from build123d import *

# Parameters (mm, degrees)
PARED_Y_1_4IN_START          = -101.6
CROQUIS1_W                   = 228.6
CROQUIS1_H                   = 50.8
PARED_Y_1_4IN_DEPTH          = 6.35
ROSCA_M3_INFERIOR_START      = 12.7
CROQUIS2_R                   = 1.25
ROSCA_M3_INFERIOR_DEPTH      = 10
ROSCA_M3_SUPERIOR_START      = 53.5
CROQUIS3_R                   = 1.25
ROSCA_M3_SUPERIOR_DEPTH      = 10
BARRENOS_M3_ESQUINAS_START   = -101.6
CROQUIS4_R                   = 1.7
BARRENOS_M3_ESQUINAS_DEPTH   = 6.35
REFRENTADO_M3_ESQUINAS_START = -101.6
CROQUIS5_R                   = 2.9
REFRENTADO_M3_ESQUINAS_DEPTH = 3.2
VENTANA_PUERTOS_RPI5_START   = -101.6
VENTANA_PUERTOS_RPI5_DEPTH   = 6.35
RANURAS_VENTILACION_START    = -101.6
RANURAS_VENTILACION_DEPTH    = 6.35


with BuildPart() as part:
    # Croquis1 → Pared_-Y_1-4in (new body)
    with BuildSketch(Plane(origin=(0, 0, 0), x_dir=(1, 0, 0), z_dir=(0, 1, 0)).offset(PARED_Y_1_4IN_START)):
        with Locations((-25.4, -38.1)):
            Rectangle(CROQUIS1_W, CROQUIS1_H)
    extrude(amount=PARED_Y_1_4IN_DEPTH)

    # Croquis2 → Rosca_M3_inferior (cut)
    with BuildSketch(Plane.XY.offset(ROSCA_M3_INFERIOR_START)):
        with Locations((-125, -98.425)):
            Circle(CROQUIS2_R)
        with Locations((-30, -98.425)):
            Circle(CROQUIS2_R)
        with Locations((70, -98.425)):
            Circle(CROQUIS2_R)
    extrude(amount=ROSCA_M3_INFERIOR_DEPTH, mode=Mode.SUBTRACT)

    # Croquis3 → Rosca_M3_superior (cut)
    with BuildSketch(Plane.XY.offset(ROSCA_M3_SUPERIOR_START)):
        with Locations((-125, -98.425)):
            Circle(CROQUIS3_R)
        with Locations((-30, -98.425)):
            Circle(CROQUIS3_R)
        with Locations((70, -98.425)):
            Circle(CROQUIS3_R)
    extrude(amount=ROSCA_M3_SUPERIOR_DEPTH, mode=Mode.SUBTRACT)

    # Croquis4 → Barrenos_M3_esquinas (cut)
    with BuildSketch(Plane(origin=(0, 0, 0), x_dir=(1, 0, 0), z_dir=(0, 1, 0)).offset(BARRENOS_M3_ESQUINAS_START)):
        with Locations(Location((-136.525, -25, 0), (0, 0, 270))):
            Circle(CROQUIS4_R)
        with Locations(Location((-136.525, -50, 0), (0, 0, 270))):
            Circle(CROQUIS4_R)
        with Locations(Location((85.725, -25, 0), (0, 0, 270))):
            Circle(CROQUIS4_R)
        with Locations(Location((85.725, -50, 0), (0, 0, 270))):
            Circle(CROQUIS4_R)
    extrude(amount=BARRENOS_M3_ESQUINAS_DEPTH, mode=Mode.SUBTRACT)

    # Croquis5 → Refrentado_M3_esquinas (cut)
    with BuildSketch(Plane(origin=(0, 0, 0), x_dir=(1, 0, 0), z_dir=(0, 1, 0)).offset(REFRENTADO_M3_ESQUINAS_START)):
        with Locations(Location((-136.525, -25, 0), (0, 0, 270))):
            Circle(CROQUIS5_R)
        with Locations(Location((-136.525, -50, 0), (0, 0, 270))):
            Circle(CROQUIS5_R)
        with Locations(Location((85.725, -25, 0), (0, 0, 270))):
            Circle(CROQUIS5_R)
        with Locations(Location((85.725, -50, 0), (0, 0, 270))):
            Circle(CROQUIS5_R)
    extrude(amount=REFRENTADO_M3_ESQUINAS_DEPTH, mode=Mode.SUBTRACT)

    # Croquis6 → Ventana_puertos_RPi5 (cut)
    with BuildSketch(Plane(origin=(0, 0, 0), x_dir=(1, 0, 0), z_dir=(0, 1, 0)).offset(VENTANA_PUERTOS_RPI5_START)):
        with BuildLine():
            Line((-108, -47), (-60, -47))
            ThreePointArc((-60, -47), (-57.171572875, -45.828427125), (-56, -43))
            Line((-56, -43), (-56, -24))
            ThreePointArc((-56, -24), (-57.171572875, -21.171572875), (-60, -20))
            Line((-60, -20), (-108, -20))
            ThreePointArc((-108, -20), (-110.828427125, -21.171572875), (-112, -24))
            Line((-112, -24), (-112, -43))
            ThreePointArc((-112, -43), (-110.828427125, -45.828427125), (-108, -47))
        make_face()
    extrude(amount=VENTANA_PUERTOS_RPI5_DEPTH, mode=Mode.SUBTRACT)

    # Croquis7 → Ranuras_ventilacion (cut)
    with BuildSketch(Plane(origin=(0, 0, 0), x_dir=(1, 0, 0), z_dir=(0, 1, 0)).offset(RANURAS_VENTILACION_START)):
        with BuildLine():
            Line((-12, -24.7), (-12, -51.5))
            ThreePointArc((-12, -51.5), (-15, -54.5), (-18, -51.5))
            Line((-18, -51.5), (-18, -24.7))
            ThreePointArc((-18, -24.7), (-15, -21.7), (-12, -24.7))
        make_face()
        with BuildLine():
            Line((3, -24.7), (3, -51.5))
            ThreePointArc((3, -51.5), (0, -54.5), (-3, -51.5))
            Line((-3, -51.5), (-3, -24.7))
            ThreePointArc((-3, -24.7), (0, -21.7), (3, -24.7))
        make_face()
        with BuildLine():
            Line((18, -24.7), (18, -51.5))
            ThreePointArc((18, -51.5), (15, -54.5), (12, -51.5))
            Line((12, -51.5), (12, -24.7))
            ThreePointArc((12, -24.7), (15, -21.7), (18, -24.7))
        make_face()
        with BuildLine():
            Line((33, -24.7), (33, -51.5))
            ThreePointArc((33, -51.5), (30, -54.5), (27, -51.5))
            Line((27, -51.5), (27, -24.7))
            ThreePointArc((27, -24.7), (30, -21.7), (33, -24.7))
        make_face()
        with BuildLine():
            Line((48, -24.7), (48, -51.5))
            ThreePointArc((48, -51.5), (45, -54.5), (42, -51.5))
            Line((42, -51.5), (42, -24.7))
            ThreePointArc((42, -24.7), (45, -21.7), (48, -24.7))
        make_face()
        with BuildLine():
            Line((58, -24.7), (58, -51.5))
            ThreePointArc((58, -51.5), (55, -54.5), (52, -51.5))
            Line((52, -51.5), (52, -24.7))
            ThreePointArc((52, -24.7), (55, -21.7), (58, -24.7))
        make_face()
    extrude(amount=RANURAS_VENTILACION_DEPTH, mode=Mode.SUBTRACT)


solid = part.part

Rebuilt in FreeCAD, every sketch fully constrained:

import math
import FreeCAD as App
import Part
import Sketcher


def add_polygon(sketch, points):
    """Adds a closed chain of lines whose ends are joined by coincident constraints."""
    first, n = sketch.GeometryCount, len(points)
    for a, b in zip(points, points[1:] + points[:1]):
        sketch.addGeometry(Part.LineSegment(App.Vector(*a, 0), App.Vector(*b, 0)), False)
    for i in range(n):
        sketch.addConstraint(Sketcher.Constraint("Coincident", first + i, 2, first + (i + 1) % n, 1))

doc = App.newDocument("Part")
body = doc.addObject("PartDesign::Body", "Body")

sketch1 = body.newObject("Sketcher::SketchObject", "Sketch")
sketch1.AttachmentSupport = (doc.getObject("XZ_Plane"), [""])
sketch1.MapMode = "FlatFace"
sketch1.AttachmentOffset = App.Placement(App.Vector(0, 0, 101.6), App.Rotation())
add_polygon(sketch1, [(-140, 13), (-140, 64), (89, 64), (89, 13)])
sketch1.addConstraint([
    Sketcher.Constraint("Vertical", 0),
    Sketcher.Constraint("Horizontal", 1),
    Sketcher.Constraint("Vertical", 2),
    Sketcher.Constraint("Horizontal", 3),
    Sketcher.Constraint("DistanceX", 1, 1, 1, 2, 228.6),
    Sketcher.Constraint("DistanceY", 0, 1, 0, 2, 50.8),
    Sketcher.Constraint("DistanceX", 0, 2, -1, 1, 139.7),
    Sketcher.Constraint("DistanceY", -1, 1, 0, 2, 63.5),
])
pad1 = body.newObject("PartDesign::Pad", "Pad")
pad1.Profile = sketch1
pad1.Length = 6.35
pad1.Reversed = True

sketch2 = body.newObject("Sketcher::SketchObject", "Sketch001")
sketch2.AttachmentSupport = (doc.getObject("XY_Plane"), [""])
sketch2.MapMode = "FlatFace"
sketch2.AttachmentOffset = App.Placement(App.Vector(0, 0, 12.7), App.Rotation())
sketch2.addGeometry([
    Part.Circle(App.Vector(-125, -98.4, 0), App.Vector(0, 0, 1), 1.2),
    Part.Circle(App.Vector(-30, -98.4, 0), App.Vector(0, 0, 1), 1.2),
    Part.Circle(App.Vector(70, -98.4, 0), App.Vector(0, 0, 1), 1.2),
], False)
sketch2.addConstraint([
    Sketcher.Constraint("Equal", 0, 1),
    Sketcher.Constraint("Equal", 1, 2),
    Sketcher.Constraint("Horizontal", 0, 3, 1, 3),
    Sketcher.Constraint("Horizontal", 1, 3, 2, 3),
    Sketcher.Constraint("Diameter", 0, 2.5),
    Sketcher.Constraint("DistanceX", 0, 3, -1, 1, 125.0),
    Sketcher.Constraint("DistanceX", 1, 3, -1, 1, 30.0),
    Sketcher.Constraint("DistanceX", -1, 1, 2, 3, 70.0),
    Sketcher.Constraint("DistanceY", 0, 3, -1, 1, 98.425),
])
pocket1 = body.newObject("PartDesign::Pocket", "Pocket")
pocket1.Profile = sketch2
pocket1.Length = 10
pocket1.Reversed = True

sketch3 = body.newObject("Sketcher::SketchObject", "Sketch002")
sketch3.AttachmentSupport = (doc.getObject("XY_Plane"), [""])
sketch3.MapMode = "FlatFace"
sketch3.AttachmentOffset = App.Placement(App.Vector(0, 0, 53.5), App.Rotation())
sketch3.addGeometry([
    Part.Circle(App.Vector(-125, -98.4, 0), App.Vector(0, 0, 1), 1.2),
    Part.Circle(App.Vector(-30, -98.4, 0), App.Vector(0, 0, 1), 1.2),
    Part.Circle(App.Vector(70, -98.4, 0), App.Vector(0, 0, 1), 1.2),
], False)
sketch3.addConstraint([
    Sketcher.Constraint("Equal", 0, 1),
    Sketcher.Constraint("Equal", 1, 2),
    Sketcher.Constraint("Horizontal", 0, 3, 1, 3),
    Sketcher.Constraint("Horizontal", 1, 3, 2, 3),
    Sketcher.Constraint("Diameter", 0, 2.5),
    Sketcher.Constraint("DistanceX", 0, 3, -1, 1, 125.0),
    Sketcher.Constraint("DistanceX", 1, 3, -1, 1, 30.0),
    Sketcher.Constraint("DistanceX", -1, 1, 2, 3, 70.0),
    Sketcher.Constraint("DistanceY", 0, 3, -1, 1, 98.425),
])
pocket2 = body.newObject("PartDesign::Pocket", "Pocket001")
pocket2.Profile = sketch3
pocket2.Length = 10
pocket2.Reversed = True

sketch4 = body.newObject("Sketcher::SketchObject", "Sketch003")
sketch4.AttachmentSupport = (doc.getObject("XZ_Plane"), [""])
sketch4.MapMode = "FlatFace"
sketch4.AttachmentOffset = App.Placement(App.Vector(0, 0, 101.6), App.Rotation())
sketch4.addGeometry([
    Part.Circle(App.Vector(-136.5, 25, 0), App.Vector(0, 0, 1), 1.7),
    Part.Circle(App.Vector(-136.5, 50, 0), App.Vector(0, 0, 1), 1.7),
    Part.Circle(App.Vector(85.7, 25, 0), App.Vector(0, 0, 1), 1.7),
    Part.Circle(App.Vector(85.7, 50, 0), App.Vector(0, 0, 1), 1.7),
], False)
sketch4.addConstraint([
    Sketcher.Constraint("Equal", 0, 1),
    Sketcher.Constraint("Equal", 1, 2),
    Sketcher.Constraint("Equal", 2, 3),
    Sketcher.Constraint("Horizontal", 0, 3, 2, 3),
    Sketcher.Constraint("Horizontal", 1, 3, 3, 3),
    Sketcher.Constraint("Vertical", 0, 3, 1, 3),
    Sketcher.Constraint("Vertical", 2, 3, 3, 3),
    Sketcher.Constraint("Diameter", 0, 3.4),
    Sketcher.Constraint("DistanceY", -1, 1, 0, 3, 25.0),
    Sketcher.Constraint("DistanceY", -1, 1, 1, 3, 50.0),
    Sketcher.Constraint("DistanceX", 0, 3, 2, 3, 222.25),
    Sketcher.Constraint("DistanceX", 0, 3, -1, 1, 136.525),
])
pocket3 = body.newObject("PartDesign::Pocket", "Pocket002")
pocket3.Profile = sketch4
pocket3.Length = 6.35

sketch5 = body.newObject("Sketcher::SketchObject", "Sketch004")
sketch5.AttachmentSupport = (doc.getObject("XZ_Plane"), [""])
sketch5.MapMode = "FlatFace"
sketch5.AttachmentOffset = App.Placement(App.Vector(0, 0, 101.6), App.Rotation())
sketch5.addGeometry([
    Part.Circle(App.Vector(-136.5, 25, 0), App.Vector(0, 0, 1), 2.9),
    Part.Circle(App.Vector(-136.5, 50, 0), App.Vector(0, 0, 1), 2.9),
    Part.Circle(App.Vector(85.7, 25, 0), App.Vector(0, 0, 1), 2.9),
    Part.Circle(App.Vector(85.7, 50, 0), App.Vector(0, 0, 1), 2.9),
], False)
sketch5.addConstraint([
    Sketcher.Constraint("Equal", 0, 1),
    Sketcher.Constraint("Equal", 1, 2),
    Sketcher.Constraint("Equal", 2, 3),
    Sketcher.Constraint("Horizontal", 0, 3, 2, 3),
    Sketcher.Constraint("Horizontal", 1, 3, 3, 3),
    Sketcher.Constraint("Vertical", 0, 3, 1, 3),
    Sketcher.Constraint("Vertical", 2, 3, 3, 3),
    Sketcher.Constraint("Diameter", 0, 5.8),
    Sketcher.Constraint("DistanceY", -1, 1, 0, 3, 25.0),
    Sketcher.Constraint("DistanceY", -1, 1, 1, 3, 50.0),
    Sketcher.Constraint("DistanceX", 0, 3, 2, 3, 222.25),
    Sketcher.Constraint("DistanceX", 0, 3, -1, 1, 136.525),
])
pocket4 = body.newObject("PartDesign::Pocket", "Pocket003")
pocket4.Profile = sketch5
pocket4.Length = 3.2

sketch6 = body.newObject("Sketcher::SketchObject", "Sketch005")
sketch6.AttachmentSupport = (doc.getObject("XZ_Plane"), [""])
sketch6.MapMode = "FlatFace"
sketch6.AttachmentOffset = App.Placement(App.Vector(0, 0, 101.6), App.Rotation())
sketch6.addGeometry([
    Part.LineSegment(App.Vector(-108, 47, 0), App.Vector(-60, 47, 0)),
    Part.ArcOfCircle(Part.Circle(App.Vector(-60, 43, 0), App.Vector(0, 0, 1), 4), math.radians(0), math.radians(90)),
    Part.LineSegment(App.Vector(-56, 43, 0), App.Vector(-56, 24, 0)),
    Part.ArcOfCircle(Part.Circle(App.Vector(-60, 24, 0), App.Vector(0, 0, 1), 4), math.radians(-90), math.radians(0)),
    Part.LineSegment(App.Vector(-60, 20, 0), App.Vector(-108, 20, 0)),
    Part.ArcOfCircle(Part.Circle(App.Vector(-108, 24, 0), App.Vector(0, 0, 1), 4), math.radians(180), math.radians(270)),
    Part.LineSegment(App.Vector(-112, 24, 0), App.Vector(-112, 43, 0)),
    Part.ArcOfCircle(Part.Circle(App.Vector(-108, 43, 0), App.Vector(0, 0, 1), 4), math.radians(90), math.radians(180)),
], False)
sketch6.addConstraint([
    Sketcher.Constraint("Tangent", 0, 2, 1, 2),
    Sketcher.Constraint("Tangent", 1, 1, 2, 1),
    Sketcher.Constraint("Tangent", 2, 2, 3, 2),
    Sketcher.Constraint("Tangent", 3, 1, 4, 1),
    Sketcher.Constraint("Tangent", 4, 2, 5, 2),
    Sketcher.Constraint("Tangent", 5, 1, 6, 1),
    Sketcher.Constraint("Tangent", 6, 2, 7, 2),
    Sketcher.Constraint("Tangent", 7, 1, 0, 1),
    Sketcher.Constraint("Horizontal", 0),
    Sketcher.Constraint("Vertical", 2),
    Sketcher.Constraint("Horizontal", 4),
    Sketcher.Constraint("Vertical", 6),
    Sketcher.Constraint("Equal", 1, 3),
    Sketcher.Constraint("Equal", 3, 5),
    Sketcher.Constraint("Equal", 5, 7),
    Sketcher.Constraint("Radius", 1, 4.0),
    Sketcher.Constraint("DistanceX", 0, 1, 0, 2, 48.0),
    Sketcher.Constraint("DistanceY", 2, 2, 2, 1, 19.0),
    Sketcher.Constraint("DistanceX", 1, 3, -1, 1, 60.0),
    Sketcher.Constraint("DistanceY", -1, 1, 1, 3, 43.0),
])
pocket5 = body.newObject("PartDesign::Pocket", "Pocket004")
pocket5.Profile = sketch6
pocket5.Length = 6.35

sketch7 = body.newObject("Sketcher::SketchObject", "Sketch006")
sketch7.AttachmentSupport = (doc.getObject("XZ_Plane"), [""])
sketch7.MapMode = "FlatFace"
sketch7.AttachmentOffset = App.Placement(App.Vector(0, 0, 101.6), App.Rotation())
sketch7.addGeometry([
    Part.LineSegment(App.Vector(-12, 51.5, 0), App.Vector(-12, 24.7, 0)),
    Part.ArcOfCircle(Part.Circle(App.Vector(-15, 24.7, 0), App.Vector(0, 0, 1), 3), math.radians(180), math.radians(360)),
    Part.LineSegment(App.Vector(-18, 24.7, 0), App.Vector(-18, 51.5, 0)),
    Part.ArcOfCircle(Part.Circle(App.Vector(-15, 51.5, 0), App.Vector(0, 0, 1), 3), math.radians(0), math.radians(180)),
    Part.LineSegment(App.Vector(3, 51.5, 0), App.Vector(3, 24.7, 0)),
    Part.ArcOfCircle(Part.Circle(App.Vector(0, 24.7, 0), App.Vector(0, 0, 1), 3), math.radians(180), math.radians(360)),
    Part.LineSegment(App.Vector(-3, 24.7, 0), App.Vector(-3, 51.5, 0)),
    Part.ArcOfCircle(Part.Circle(App.Vector(0, 51.5, 0), App.Vector(0, 0, 1), 3), math.radians(0), math.radians(180)),
    Part.LineSegment(App.Vector(18, 51.5, 0), App.Vector(18, 24.7, 0)),
    Part.ArcOfCircle(Part.Circle(App.Vector(15, 24.7, 0), App.Vector(0, 0, 1), 3), math.radians(180), math.radians(360)),
    Part.LineSegment(App.Vector(12, 24.7, 0), App.Vector(12, 51.5, 0)),
    Part.ArcOfCircle(Part.Circle(App.Vector(15, 51.5, 0), App.Vector(0, 0, 1), 3), math.radians(0), math.radians(180)),
    Part.LineSegment(App.Vector(33, 51.5, 0), App.Vector(33, 24.7, 0)),
    Part.ArcOfCircle(Part.Circle(App.Vector(30, 24.7, 0), App.Vector(0, 0, 1), 3), math.radians(180), math.radians(360)),
    Part.LineSegment(App.Vector(27, 24.7, 0), App.Vector(27, 51.5, 0)),
    Part.ArcOfCircle(Part.Circle(App.Vector(30, 51.5, 0), App.Vector(0, 0, 1), 3), math.radians(0), math.radians(180)),
    Part.LineSegment(App.Vector(48, 51.5, 0), App.Vector(48, 24.7, 0)),
    Part.ArcOfCircle(Part.Circle(App.Vector(45, 24.7, 0), App.Vector(0, 0, 1), 3), math.radians(180), math.radians(360)),
    Part.LineSegment(App.Vector(42, 24.7, 0), App.Vector(42, 51.5, 0)),
    Part.ArcOfCircle(Part.Circle(App.Vector(45, 51.5, 0), App.Vector(0, 0, 1), 3), math.radians(0), math.radians(180)),
    Part.LineSegment(App.Vector(58, 51.5, 0), App.Vector(58, 24.7, 0)),
    Part.ArcOfCircle(Part.Circle(App.Vector(55, 24.7, 0), App.Vector(0, 0, 1), 3), math.radians(180), math.radians(360)),
    Part.LineSegment(App.Vector(52, 24.7, 0), App.Vector(52, 51.5, 0)),
    Part.ArcOfCircle(Part.Circle(App.Vector(55, 51.5, 0), App.Vector(0, 0, 1), 3), math.radians(0), math.radians(180)),
], False)
sketch7.addConstraint([
    Sketcher.Constraint("Tangent", 0, 2, 1, 2),
    Sketcher.Constraint("Tangent", 1, 1, 2, 1),
    Sketcher.Constraint("Tangent", 2, 2, 3, 2),
    Sketcher.Constraint("Tangent", 3, 1, 0, 1),
    Sketcher.Constraint("Tangent", 4, 2, 5, 2),
    Sketcher.Constraint("Tangent", 5, 1, 6, 1),
    Sketcher.Constraint("Tangent", 6, 2, 7, 2),
    Sketcher.Constraint("Tangent", 7, 1, 4, 1),
    Sketcher.Constraint("Tangent", 8, 2, 9, 2),
    Sketcher.Constraint("Tangent", 9, 1, 10, 1),
    Sketcher.Constraint("Tangent", 10, 2, 11, 2),
    Sketcher.Constraint("Tangent", 11, 1, 8, 1),
    Sketcher.Constraint("Tangent", 12, 2, 13, 2),
    Sketcher.Constraint("Tangent", 13, 1, 14, 1),
    Sketcher.Constraint("Tangent", 14, 2, 15, 2),
    Sketcher.Constraint("Tangent", 15, 1, 12, 1),
    Sketcher.Constraint("Tangent", 16, 2, 17, 2),
    Sketcher.Constraint("Tangent", 17, 1, 18, 1),
    Sketcher.Constraint("Tangent", 18, 2, 19, 2),
    Sketcher.Constraint("Tangent", 19, 1, 16, 1),
    Sketcher.Constraint("Tangent", 20, 2, 21, 2),
    Sketcher.Constraint("Tangent", 21, 1, 22, 1),
    Sketcher.Constraint("Tangent", 22, 2, 23, 2),
    Sketcher.Constraint("Tangent", 23, 1, 20, 1),
    Sketcher.Constraint("Vertical", 0),
    Sketcher.Constraint("Vertical", 2),
    Sketcher.Constraint("Vertical", 4),
    Sketcher.Constraint("Vertical", 6),
    Sketcher.Constraint("Vertical", 8),
    Sketcher.Constraint("Vertical", 10),
    Sketcher.Constraint("Vertical", 12),
    Sketcher.Constraint("Vertical", 14),
    Sketcher.Constraint("Vertical", 16),
    Sketcher.Constraint("Vertical", 18),
    Sketcher.Constraint("Vertical", 20),
    Sketcher.Constraint("Vertical", 22),
    Sketcher.Constraint("Equal", 3, 5),
    Sketcher.Constraint("Equal", 7, 9),
    Sketcher.Constraint("Equal", 11, 13),
    Sketcher.Constraint("Equal", 15, 17),
    Sketcher.Constraint("Equal", 19, 21),
    Sketcher.Constraint("Symmetric", 1, 3, 9, 3, -2),
    Sketcher.Constraint("PointOnObject", 5, 3, -2),
    Sketcher.Constraint("Horizontal", 1, 3, 5, 3),
    Sketcher.Constraint("Horizontal", 3, 3, 7, 3),
    Sketcher.Constraint("Horizontal", 7, 3, 11, 3),
    Sketcher.Constraint("Horizontal", 9, 3, 13, 3),
    Sketcher.Constraint("Horizontal", 11, 3, 15, 3),
    Sketcher.Constraint("Horizontal", 13, 3, 17, 3),
    Sketcher.Constraint("Horizontal", 15, 3, 19, 3),
    Sketcher.Constraint("Horizontal", 17, 3, 21, 3),
    Sketcher.Constraint("Horizontal", 19, 3, 23, 3),
    Sketcher.Constraint("Radius", 1, 3.0),
    Sketcher.Constraint("DistanceY", 0, 2, 0, 1, 26.8),
    Sketcher.Constraint("DistanceX", 1, 3, -1, 1, 15.0),
    Sketcher.Constraint("DistanceX", -1, 1, 13, 3, 30.0),
    Sketcher.Constraint("DistanceX", -1, 1, 17, 3, 45.0),
    Sketcher.Constraint("DistanceX", -1, 1, 21, 3, 55.0),
    Sketcher.Constraint("DistanceY", -1, 1, 1, 3, 24.7),
])
pocket6 = body.newObject("PartDesign::Pocket", "Pocket005")
pocket6.Profile = sketch7
pocket6.Length = 6.35

doc.recompute()
